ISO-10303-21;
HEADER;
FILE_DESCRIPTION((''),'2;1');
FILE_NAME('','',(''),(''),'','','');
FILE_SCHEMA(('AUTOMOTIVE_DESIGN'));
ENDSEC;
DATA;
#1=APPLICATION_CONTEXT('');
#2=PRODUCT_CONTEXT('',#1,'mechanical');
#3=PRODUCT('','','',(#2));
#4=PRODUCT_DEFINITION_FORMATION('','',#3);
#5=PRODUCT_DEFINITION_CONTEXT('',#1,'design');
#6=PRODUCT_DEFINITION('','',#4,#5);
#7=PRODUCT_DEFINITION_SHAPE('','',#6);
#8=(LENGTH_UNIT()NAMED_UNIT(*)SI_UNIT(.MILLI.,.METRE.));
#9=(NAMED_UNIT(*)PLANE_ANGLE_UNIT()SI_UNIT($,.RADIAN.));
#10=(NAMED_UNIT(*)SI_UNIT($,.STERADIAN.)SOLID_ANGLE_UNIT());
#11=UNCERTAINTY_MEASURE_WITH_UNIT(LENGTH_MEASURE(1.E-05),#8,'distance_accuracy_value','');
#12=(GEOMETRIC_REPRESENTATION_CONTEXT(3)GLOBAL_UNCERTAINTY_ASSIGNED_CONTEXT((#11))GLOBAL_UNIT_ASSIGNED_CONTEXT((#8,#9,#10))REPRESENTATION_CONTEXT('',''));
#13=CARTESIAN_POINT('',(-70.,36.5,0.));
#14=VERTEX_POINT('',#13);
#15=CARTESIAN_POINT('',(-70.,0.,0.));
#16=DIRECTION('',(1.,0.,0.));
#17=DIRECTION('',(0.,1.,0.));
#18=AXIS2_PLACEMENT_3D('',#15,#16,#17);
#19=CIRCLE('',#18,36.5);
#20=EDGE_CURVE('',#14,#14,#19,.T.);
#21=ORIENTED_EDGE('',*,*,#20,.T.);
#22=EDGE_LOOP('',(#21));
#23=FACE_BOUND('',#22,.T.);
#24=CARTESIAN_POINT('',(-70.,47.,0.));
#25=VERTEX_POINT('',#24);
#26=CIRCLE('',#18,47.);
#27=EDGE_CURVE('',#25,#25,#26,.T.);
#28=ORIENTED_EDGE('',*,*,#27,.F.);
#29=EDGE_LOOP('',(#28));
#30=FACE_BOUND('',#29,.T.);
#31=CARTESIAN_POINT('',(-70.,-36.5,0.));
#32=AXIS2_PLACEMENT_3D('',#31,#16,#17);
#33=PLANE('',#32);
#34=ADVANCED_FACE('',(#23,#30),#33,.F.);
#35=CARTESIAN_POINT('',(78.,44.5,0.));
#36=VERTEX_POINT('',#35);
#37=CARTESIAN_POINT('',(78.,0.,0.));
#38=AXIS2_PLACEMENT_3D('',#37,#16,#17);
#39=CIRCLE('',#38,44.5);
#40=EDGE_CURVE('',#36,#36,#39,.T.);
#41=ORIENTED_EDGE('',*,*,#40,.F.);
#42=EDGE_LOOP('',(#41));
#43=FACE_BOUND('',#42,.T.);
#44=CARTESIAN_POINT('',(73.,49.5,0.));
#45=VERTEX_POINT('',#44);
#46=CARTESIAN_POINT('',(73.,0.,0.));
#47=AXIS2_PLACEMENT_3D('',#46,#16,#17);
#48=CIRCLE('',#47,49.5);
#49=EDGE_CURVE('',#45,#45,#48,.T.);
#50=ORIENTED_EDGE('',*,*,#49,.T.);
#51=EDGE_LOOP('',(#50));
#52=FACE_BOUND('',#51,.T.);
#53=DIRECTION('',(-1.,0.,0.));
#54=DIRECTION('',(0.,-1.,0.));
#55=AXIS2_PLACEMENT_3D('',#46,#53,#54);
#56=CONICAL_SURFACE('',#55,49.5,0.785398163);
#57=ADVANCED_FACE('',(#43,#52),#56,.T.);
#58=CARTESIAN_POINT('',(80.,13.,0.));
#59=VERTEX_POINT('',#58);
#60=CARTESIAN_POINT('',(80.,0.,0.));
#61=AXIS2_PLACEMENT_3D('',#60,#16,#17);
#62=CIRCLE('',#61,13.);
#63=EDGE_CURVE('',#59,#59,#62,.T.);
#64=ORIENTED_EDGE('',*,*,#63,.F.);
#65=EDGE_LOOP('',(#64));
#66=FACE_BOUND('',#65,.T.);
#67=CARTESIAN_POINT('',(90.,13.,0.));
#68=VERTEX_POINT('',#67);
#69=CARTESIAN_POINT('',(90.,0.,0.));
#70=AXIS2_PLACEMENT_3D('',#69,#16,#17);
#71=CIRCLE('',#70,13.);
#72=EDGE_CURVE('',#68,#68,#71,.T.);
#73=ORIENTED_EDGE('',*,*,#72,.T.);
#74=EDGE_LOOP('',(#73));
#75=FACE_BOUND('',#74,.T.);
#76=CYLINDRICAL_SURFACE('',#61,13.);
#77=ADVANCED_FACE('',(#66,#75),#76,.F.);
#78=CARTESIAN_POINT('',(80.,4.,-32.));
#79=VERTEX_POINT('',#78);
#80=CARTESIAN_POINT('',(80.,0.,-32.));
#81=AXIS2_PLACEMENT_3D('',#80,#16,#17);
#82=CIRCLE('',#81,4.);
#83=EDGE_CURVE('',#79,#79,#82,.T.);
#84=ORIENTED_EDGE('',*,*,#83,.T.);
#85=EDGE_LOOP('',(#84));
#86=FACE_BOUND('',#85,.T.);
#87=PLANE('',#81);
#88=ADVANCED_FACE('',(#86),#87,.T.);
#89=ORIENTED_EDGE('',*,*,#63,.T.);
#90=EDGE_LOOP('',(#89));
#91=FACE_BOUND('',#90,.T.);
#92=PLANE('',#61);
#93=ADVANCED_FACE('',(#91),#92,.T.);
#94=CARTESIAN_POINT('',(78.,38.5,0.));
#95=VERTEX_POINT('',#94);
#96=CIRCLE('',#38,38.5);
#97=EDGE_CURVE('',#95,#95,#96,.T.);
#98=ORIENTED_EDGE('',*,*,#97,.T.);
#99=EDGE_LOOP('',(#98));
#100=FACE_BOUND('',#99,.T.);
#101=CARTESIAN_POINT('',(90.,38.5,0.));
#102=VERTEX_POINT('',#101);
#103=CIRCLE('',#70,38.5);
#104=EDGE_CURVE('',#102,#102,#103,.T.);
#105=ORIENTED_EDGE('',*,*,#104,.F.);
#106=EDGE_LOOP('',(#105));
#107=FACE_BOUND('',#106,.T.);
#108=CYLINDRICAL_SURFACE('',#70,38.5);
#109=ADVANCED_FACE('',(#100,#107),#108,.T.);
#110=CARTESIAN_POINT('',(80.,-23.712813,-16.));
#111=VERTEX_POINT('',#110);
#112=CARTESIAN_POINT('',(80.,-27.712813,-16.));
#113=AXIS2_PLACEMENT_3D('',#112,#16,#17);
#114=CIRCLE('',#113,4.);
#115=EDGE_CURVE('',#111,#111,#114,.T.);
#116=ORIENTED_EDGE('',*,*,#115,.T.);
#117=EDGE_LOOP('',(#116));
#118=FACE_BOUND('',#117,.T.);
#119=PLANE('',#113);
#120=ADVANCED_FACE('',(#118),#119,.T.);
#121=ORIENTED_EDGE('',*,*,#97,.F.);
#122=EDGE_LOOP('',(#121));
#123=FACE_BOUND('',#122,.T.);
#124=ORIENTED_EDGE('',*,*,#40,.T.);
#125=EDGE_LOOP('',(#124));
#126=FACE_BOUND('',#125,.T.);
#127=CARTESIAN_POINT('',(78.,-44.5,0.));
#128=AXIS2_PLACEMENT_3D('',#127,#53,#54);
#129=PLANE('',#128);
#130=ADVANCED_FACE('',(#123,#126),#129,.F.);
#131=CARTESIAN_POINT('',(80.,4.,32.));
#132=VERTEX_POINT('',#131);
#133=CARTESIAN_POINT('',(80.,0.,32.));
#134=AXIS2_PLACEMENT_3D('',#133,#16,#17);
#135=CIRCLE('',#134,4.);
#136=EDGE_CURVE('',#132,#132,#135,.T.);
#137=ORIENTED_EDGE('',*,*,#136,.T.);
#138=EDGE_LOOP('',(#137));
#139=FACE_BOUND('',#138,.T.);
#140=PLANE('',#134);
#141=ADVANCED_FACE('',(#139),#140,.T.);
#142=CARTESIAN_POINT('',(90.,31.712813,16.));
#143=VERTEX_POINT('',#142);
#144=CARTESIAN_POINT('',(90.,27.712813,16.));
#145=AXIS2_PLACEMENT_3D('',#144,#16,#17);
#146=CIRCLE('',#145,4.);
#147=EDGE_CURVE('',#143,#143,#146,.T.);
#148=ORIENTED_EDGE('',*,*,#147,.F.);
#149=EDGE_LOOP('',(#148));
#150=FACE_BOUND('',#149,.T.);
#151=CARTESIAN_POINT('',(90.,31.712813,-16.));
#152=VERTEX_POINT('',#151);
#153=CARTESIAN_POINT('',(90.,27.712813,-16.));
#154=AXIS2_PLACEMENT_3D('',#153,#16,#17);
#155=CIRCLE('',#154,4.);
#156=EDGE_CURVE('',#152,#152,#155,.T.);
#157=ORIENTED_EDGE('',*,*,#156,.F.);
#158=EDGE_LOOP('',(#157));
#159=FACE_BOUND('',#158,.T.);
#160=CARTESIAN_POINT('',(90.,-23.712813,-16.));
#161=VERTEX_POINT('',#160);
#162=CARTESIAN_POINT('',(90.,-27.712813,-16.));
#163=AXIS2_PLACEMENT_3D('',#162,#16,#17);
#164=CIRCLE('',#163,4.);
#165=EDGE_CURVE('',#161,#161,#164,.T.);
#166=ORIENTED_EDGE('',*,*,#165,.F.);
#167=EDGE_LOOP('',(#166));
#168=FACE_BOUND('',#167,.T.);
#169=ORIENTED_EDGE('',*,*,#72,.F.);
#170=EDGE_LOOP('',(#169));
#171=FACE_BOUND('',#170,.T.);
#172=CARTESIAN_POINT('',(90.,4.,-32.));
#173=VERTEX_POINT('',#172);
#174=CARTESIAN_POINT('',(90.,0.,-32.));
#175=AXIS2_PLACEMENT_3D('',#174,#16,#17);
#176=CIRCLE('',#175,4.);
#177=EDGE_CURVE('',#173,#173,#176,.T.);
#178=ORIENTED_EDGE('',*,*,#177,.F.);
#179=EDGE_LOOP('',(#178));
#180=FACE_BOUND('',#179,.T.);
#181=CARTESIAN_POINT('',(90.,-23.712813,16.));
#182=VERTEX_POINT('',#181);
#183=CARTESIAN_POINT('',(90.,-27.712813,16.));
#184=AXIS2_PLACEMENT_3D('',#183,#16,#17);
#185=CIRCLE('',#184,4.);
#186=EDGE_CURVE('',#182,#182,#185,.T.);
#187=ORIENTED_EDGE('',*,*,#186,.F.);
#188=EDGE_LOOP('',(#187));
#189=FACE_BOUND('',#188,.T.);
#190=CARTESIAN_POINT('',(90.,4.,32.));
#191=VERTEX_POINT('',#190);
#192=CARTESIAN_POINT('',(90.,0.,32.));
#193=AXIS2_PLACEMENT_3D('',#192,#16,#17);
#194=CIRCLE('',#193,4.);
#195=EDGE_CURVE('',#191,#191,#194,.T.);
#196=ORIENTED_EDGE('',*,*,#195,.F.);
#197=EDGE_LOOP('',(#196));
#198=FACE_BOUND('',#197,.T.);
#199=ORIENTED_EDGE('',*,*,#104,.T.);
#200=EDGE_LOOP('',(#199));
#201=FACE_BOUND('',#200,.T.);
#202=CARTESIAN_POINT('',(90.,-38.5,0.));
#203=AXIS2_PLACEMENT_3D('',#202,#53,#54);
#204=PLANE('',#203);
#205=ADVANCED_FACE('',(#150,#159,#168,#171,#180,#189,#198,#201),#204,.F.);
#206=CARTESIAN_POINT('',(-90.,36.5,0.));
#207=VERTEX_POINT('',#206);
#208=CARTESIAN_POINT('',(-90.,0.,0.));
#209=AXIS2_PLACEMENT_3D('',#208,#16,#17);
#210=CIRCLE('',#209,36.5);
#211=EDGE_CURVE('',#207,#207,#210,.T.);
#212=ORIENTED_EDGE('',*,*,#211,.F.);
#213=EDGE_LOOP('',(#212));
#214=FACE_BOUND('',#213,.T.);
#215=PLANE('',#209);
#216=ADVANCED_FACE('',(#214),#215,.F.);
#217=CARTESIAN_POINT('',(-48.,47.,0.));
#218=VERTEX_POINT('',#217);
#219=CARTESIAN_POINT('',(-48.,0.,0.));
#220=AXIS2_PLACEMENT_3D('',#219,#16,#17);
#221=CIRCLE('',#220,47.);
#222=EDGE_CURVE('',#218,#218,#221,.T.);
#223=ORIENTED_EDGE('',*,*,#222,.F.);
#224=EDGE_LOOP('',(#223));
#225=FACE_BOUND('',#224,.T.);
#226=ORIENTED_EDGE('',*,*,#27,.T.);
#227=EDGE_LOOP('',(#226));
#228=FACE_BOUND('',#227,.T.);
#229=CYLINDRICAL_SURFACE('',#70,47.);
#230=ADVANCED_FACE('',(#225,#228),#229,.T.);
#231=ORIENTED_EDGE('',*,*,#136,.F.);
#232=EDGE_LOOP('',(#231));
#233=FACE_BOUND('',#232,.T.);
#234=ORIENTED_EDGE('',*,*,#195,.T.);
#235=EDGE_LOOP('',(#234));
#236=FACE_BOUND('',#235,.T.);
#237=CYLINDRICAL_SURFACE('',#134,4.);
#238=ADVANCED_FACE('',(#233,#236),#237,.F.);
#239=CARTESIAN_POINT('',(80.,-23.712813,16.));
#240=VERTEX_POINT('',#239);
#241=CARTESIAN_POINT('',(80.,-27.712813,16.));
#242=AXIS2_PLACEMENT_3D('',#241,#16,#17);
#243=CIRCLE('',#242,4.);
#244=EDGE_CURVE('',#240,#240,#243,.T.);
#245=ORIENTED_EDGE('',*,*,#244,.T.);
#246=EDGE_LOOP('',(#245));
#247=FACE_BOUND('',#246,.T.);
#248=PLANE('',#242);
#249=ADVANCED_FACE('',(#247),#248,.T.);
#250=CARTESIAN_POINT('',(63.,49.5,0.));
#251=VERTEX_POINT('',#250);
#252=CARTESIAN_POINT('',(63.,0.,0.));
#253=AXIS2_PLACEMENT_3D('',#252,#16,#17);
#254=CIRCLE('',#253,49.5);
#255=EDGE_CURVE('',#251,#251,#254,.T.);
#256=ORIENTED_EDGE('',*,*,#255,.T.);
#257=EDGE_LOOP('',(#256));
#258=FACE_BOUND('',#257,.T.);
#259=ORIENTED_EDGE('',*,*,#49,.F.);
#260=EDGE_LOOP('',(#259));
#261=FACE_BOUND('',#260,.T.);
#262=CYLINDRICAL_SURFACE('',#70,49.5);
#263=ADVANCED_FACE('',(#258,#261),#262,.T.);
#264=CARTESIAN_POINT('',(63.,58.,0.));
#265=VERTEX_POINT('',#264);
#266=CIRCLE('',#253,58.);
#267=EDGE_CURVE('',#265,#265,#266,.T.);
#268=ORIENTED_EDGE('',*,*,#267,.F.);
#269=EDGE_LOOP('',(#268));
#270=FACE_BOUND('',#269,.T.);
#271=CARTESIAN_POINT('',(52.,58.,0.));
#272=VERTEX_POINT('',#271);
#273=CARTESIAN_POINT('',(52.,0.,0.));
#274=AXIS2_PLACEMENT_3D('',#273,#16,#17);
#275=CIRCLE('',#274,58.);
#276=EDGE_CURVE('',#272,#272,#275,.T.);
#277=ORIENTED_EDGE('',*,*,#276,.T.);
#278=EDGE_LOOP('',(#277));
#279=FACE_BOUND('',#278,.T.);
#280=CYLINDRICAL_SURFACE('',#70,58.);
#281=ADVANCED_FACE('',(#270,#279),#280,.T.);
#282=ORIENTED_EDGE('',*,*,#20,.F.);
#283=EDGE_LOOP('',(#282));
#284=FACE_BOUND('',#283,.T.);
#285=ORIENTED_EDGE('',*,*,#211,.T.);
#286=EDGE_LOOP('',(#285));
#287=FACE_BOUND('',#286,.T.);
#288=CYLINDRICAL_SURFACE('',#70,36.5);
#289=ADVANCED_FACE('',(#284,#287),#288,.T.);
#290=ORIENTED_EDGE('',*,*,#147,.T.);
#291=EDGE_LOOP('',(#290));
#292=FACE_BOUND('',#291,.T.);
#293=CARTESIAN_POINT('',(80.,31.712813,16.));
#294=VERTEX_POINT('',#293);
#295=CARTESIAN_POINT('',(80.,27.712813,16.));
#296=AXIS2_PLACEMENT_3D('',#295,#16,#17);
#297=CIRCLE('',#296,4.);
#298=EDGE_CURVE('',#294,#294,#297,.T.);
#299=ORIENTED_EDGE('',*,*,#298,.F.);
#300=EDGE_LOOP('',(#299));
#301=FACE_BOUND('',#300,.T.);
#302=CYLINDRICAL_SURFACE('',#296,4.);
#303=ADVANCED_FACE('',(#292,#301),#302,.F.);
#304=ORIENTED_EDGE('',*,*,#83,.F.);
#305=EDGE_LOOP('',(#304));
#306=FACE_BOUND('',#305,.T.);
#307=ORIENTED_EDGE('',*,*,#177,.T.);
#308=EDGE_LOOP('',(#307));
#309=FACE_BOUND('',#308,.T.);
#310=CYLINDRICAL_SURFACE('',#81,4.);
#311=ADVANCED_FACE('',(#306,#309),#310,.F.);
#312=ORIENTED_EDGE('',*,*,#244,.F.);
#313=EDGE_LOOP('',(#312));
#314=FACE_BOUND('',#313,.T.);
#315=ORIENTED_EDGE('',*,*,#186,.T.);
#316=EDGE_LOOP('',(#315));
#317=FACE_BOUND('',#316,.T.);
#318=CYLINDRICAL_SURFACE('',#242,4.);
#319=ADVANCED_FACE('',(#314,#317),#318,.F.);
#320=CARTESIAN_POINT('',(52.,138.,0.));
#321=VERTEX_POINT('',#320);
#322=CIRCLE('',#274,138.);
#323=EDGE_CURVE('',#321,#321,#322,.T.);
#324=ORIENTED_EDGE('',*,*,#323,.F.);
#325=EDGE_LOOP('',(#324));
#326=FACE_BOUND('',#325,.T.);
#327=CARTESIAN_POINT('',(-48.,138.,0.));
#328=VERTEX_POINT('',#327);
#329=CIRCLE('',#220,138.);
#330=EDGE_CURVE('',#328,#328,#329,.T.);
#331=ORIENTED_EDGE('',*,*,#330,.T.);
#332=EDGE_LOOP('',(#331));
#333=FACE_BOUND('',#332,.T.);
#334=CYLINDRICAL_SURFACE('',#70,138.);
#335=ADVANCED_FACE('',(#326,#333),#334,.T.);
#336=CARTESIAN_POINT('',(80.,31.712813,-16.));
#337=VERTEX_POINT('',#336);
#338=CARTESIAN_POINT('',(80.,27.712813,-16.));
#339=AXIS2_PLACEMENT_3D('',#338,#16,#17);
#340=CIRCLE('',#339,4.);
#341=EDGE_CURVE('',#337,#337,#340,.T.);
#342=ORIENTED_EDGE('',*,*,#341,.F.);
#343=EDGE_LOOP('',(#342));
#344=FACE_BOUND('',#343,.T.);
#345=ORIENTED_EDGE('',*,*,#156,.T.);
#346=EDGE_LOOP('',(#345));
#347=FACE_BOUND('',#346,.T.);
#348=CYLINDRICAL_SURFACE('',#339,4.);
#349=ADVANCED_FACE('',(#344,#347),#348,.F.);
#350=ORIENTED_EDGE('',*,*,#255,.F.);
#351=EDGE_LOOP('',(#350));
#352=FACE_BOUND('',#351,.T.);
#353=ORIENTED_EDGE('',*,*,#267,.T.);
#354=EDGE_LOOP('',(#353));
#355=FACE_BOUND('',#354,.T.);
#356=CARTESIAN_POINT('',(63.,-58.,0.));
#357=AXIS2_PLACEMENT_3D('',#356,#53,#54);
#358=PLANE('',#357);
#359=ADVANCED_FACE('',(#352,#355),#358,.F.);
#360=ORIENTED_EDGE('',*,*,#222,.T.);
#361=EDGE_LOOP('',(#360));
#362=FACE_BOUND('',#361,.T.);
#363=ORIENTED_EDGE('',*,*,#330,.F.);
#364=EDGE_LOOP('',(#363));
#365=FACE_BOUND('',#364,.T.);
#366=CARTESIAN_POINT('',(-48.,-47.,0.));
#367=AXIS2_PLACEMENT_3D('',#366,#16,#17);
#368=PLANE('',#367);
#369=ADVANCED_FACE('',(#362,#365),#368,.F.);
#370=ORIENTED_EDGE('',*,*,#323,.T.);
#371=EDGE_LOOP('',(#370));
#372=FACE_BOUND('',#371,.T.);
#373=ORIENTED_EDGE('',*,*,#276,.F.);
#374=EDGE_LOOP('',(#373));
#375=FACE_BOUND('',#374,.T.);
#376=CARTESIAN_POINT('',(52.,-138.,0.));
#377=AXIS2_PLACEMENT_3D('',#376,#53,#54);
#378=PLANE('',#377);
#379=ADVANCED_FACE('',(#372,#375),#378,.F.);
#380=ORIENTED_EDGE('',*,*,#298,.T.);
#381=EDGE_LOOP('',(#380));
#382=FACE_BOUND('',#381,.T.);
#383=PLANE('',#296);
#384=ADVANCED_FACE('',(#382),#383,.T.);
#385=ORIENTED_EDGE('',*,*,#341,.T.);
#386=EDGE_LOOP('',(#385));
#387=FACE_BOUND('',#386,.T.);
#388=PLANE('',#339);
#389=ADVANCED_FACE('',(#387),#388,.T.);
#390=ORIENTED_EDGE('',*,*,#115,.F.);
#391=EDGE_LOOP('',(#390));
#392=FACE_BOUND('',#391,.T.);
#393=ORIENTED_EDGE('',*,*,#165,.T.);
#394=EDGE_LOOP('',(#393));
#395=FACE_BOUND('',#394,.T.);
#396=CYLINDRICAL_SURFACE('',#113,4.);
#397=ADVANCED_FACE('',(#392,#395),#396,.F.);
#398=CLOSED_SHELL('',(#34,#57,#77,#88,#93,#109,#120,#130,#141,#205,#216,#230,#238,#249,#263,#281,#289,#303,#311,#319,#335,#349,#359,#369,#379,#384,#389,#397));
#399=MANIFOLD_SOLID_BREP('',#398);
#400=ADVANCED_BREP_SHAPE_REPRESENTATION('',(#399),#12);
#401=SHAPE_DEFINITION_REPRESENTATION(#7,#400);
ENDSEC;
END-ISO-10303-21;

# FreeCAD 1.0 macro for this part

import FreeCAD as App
import Part
import Sketcher

V = App.Vector
Q = App.Units.Quantity

doc = App.newDocument("Part")
params = doc.addObject("Spreadsheet::Sheet", "Params")
for row, (alias, value) in enumerate([
    ("sketch1_width", "20 mm"),
    ("sketch1_width2", "22 mm"),
    ("sketch1_width3", "100 mm"),
    ("sketch1_width4", "11 mm"),
    ("sketch1_width5", "10 mm"),
    ("revolution_angle", "360 deg"),
    ("sketch2_diameter", "8 mm"),
    ("pocket1_length", "10 mm"),
    ("sketch3_diameter", "26 mm"),
    ("pocket2_length", "10 mm"),
], start=1):
    params.set(f"A{row}", alias)
    params.set(f"B{row}", "=" + value)
    params.setAlias(f"B{row}", alias)

body = doc.addObject("PartDesign::Body", "Body")

sketch1 = body.newObject("Sketcher::SketchObject", "Sketch")
sketch1.AttachmentSupport = (doc.getObject("XY_Plane"), [""])
sketch1.MapMode = "FlatFace"
sketch1.addGeometry([
    Part.LineSegment(V(-90, -36, 0), V(-70, -36, 0)),
    Part.LineSegment(V(-70, -36, 0), V(-70, -47, 0)),
    Part.LineSegment(V(-70, -47, 0), V(-48, -47, 0)),
    Part.LineSegment(V(-48, -47, 0), V(-48, -138, 0)),
    Part.LineSegment(V(-48, -138, 0), V(52, -138, 0)),
    Part.LineSegment(V(52, -138, 0), V(52, -58, 0)),
    Part.LineSegment(V(52, -58, 0), V(63, -58, 0)),
    Part.LineSegment(V(63, -58, 0), V(63, -50, 0)),
    Part.LineSegment(V(63, -50, 0), V(73, -50, 0)),
    Part.LineSegment(V(73, -50, 0), V(78, -44, 0)),
    Part.LineSegment(V(78, -44, 0), V(78, -38, 0)),
    Part.LineSegment(V(78, -38, 0), V(90, -38, 0)),
    Part.LineSegment(V(90, -38, 0), V(90, 0, 0)),
    Part.LineSegment(V(90, 0, 0), V(-90, 0, 0)),
    Part.LineSegment(V(-90, 0, 0), V(-90, -36, 0)),
], False)
sketch1.addConstraint([
    Sketcher.Constraint("Coincident", 0, 2, 1, 1),
    Sketcher.Constraint("Coincident", 1, 2, 2, 1),
    Sketcher.Constraint("Coincident", 2, 2, 3, 1),
    Sketcher.Constraint("Coincident", 3, 2, 4, 1),
    Sketcher.Constraint("Coincident", 4, 2, 5, 1),
    Sketcher.Constraint("Coincident", 5, 2, 6, 1),
    Sketcher.Constraint("Coincident", 6, 2, 7, 1),
    Sketcher.Constraint("Coincident", 7, 2, 8, 1),
    Sketcher.Constraint("Coincident", 8, 2, 9, 1),
    Sketcher.Constraint("Coincident", 9, 2, 10, 1),
    Sketcher.Constraint("Coincident", 10, 2, 11, 1),
    Sketcher.Constraint("Coincident", 11, 2, 12, 1),
    Sketcher.Constraint("Coincident", 12, 2, 13, 1),
    Sketcher.Constraint("Coincident", 13, 2, 14, 1),
    Sketcher.Constraint("Coincident", 14, 2, 0, 1),
    Sketcher.Constraint("Horizontal", 0),
    Sketcher.Constraint("Vertical", 1),
    Sketcher.Constraint("Horizontal", 2),
    Sketcher.Constraint("Vertical", 3),
    Sketcher.Constraint("Horizontal", 4),
    Sketcher.Constraint("Vertical", 5),
    Sketcher.Constraint("Horizontal", 6),
    Sketcher.Constraint("Vertical", 7),
    Sketcher.Constraint("Horizontal", 8),
    Sketcher.Constraint("Vertical", 10),
    Sketcher.Constraint("Horizontal", 11),
    Sketcher.Constraint("Vertical", 12),
    Sketcher.Constraint("Horizontal", 13),
    Sketcher.Constraint("Vertical", 14),
    Sketcher.Constraint("Symmetric", 12, 2, 13, 2, -1, 1),
    Sketcher.Constraint("DistanceX", 0, 1, 0, 2, 20.0),
    Sketcher.Constraint("DistanceX", 2, 1, 2, 2, 22.0),
    Sketcher.Constraint("DistanceX", 4, 1, 4, 2, 100.0),
    Sketcher.Constraint("DistanceX", 6, 1, 6, 2, 11.0),
    Sketcher.Constraint("DistanceX", 8, 1, 8, 2, 10.0),
    Sketcher.Constraint("DistanceX", 11, 1, 11, 2, 12.0),
    Sketcher.Constraint("DistanceX", 13, 2, 13, 1, 180.0),
    Sketcher.Constraint("DistanceY", 3, 2, 3, 1, 91.0),
    Sketcher.Constraint("DistanceY", 5, 1, 5, 2, 80.0),
    Sketcher.Constraint("DistanceY", 10, 1, 10, 2, 6.0),
    Sketcher.Constraint("Angle", 9, Q("45 deg")),
    Sketcher.Constraint("DistanceY", 1, 2, 1, 1, 10.5),
    Sketcher.Constraint("DistanceY", 7, 1, 7, 2, 8.5),
    Sketcher.Constraint("DistanceY", 12, 1, 12, 2, 38.5),
])
sketch1.setExpression("Constraints[30]", "Params.sketch1_width")
sketch1.setExpression("Constraints[31]", "Params.sketch1_width2")
sketch1.setExpression("Constraints[32]", "Params.sketch1_width3")
sketch1.setExpression("Constraints[33]", "Params.sketch1_width4")
sketch1.setExpression("Constraints[34]", "Params.sketch1_width5")
revolution = body.newObject("PartDesign::Revolution", "Revolution")
revolution.Profile = sketch1
revolution.ReferenceAxis = (sketch1, ["H_Axis"])
revolution.setExpression("Angle", "Params.revolution_angle")

sketch2 = body.newObject("Sketcher::SketchObject", "Sketch001")
sketch2.AttachmentSupport = (doc.getObject("YZ_Plane"), [""])
sketch2.MapMode = "FlatFace"
sketch2.AttachmentOffset = App.Placement(V(0, 0, 90), App.Rotation())
sketch2.addGeometry([
    Part.Circle(V(27.7, -16, 0), V(0, 0, 1), 4),
    Part.Circle(V(0, -32, 0), V(0, 0, 1), 4),
    Part.Circle(V(-27.7, -16, 0), V(0, 0, 1), 4),
    Part.Circle(V(-27.7, 16, 0), V(0, 0, 1), 4),
    Part.Circle(V(0, 32, 0), V(0, 0, 1), 4),
    Part.Circle(V(27.7, 16, 0), V(0, 0, 1), 4),
], False)
sketch2.addConstraint([
    Sketcher.Constraint("Equal", 0, 1),
    Sketcher.Constraint("Equal", 1, 2),
    Sketcher.Constraint("Equal", 2, 3),
    Sketcher.Constraint("Equal", 3, 4),
    Sketcher.Constraint("Equal", 4, 5),
    Sketcher.Constraint("Symmetric", 0, 3, 3, 3, -1, 1),
    Sketcher.Constraint("Symmetric", 1, 3, 4, 3, -1, 1),
    Sketcher.Constraint("Symmetric", 2, 3, 5, 3, -1, 1),
    Sketcher.Constraint("Symmetric", 0, 3, 2, 3, -2),
    Sketcher.Constraint("PointOnObject", 1, 3, -2),
    Sketcher.Constraint("Diameter", 0, 8.0),
    Sketcher.Constraint("DistanceY", 0, 3, -1, 1, 16.0),
    Sketcher.Constraint("DistanceY", 1, 3, -1, 1, 32.0),
    Sketcher.Constraint("DistanceX", -1, 1, 0, 3, 27.712813),
])
sketch2.setExpression("Constraints[10]", "Params.sketch2_diameter")
pocket1 = body.newObject("PartDesign::Pocket", "Pocket")
pocket1.Profile = sketch2
pocket1.setExpression("Length", "Params.pocket1_length")

sketch3 = body.newObject("Sketcher::SketchObject", "Sketch002")
sketch3.AttachmentSupport = (doc.getObject("YZ_Plane"), [""])
sketch3.MapMode = "FlatFace"
sketch3.AttachmentOffset = App.Placement(V(0, 0, 90), App.Rotation())
sketch3.addGeometry(Part.Circle(V(0, 0, 0), V(0, 0, 1), 13), False)
sketch3.addConstraint([
    Sketcher.Constraint("Coincident", 0, 3, -1, 1),
    Sketcher.Constraint("Diameter", 0, 26.0),
])
sketch3.setExpression("Constraints[1]", "Params.sketch3_diameter")
pocket2 = body.newObject("PartDesign::Pocket", "Pocket001")
pocket2.Profile = sketch3
pocket2.setExpression("Length", "Params.pocket2_length")

doc.recompute()
